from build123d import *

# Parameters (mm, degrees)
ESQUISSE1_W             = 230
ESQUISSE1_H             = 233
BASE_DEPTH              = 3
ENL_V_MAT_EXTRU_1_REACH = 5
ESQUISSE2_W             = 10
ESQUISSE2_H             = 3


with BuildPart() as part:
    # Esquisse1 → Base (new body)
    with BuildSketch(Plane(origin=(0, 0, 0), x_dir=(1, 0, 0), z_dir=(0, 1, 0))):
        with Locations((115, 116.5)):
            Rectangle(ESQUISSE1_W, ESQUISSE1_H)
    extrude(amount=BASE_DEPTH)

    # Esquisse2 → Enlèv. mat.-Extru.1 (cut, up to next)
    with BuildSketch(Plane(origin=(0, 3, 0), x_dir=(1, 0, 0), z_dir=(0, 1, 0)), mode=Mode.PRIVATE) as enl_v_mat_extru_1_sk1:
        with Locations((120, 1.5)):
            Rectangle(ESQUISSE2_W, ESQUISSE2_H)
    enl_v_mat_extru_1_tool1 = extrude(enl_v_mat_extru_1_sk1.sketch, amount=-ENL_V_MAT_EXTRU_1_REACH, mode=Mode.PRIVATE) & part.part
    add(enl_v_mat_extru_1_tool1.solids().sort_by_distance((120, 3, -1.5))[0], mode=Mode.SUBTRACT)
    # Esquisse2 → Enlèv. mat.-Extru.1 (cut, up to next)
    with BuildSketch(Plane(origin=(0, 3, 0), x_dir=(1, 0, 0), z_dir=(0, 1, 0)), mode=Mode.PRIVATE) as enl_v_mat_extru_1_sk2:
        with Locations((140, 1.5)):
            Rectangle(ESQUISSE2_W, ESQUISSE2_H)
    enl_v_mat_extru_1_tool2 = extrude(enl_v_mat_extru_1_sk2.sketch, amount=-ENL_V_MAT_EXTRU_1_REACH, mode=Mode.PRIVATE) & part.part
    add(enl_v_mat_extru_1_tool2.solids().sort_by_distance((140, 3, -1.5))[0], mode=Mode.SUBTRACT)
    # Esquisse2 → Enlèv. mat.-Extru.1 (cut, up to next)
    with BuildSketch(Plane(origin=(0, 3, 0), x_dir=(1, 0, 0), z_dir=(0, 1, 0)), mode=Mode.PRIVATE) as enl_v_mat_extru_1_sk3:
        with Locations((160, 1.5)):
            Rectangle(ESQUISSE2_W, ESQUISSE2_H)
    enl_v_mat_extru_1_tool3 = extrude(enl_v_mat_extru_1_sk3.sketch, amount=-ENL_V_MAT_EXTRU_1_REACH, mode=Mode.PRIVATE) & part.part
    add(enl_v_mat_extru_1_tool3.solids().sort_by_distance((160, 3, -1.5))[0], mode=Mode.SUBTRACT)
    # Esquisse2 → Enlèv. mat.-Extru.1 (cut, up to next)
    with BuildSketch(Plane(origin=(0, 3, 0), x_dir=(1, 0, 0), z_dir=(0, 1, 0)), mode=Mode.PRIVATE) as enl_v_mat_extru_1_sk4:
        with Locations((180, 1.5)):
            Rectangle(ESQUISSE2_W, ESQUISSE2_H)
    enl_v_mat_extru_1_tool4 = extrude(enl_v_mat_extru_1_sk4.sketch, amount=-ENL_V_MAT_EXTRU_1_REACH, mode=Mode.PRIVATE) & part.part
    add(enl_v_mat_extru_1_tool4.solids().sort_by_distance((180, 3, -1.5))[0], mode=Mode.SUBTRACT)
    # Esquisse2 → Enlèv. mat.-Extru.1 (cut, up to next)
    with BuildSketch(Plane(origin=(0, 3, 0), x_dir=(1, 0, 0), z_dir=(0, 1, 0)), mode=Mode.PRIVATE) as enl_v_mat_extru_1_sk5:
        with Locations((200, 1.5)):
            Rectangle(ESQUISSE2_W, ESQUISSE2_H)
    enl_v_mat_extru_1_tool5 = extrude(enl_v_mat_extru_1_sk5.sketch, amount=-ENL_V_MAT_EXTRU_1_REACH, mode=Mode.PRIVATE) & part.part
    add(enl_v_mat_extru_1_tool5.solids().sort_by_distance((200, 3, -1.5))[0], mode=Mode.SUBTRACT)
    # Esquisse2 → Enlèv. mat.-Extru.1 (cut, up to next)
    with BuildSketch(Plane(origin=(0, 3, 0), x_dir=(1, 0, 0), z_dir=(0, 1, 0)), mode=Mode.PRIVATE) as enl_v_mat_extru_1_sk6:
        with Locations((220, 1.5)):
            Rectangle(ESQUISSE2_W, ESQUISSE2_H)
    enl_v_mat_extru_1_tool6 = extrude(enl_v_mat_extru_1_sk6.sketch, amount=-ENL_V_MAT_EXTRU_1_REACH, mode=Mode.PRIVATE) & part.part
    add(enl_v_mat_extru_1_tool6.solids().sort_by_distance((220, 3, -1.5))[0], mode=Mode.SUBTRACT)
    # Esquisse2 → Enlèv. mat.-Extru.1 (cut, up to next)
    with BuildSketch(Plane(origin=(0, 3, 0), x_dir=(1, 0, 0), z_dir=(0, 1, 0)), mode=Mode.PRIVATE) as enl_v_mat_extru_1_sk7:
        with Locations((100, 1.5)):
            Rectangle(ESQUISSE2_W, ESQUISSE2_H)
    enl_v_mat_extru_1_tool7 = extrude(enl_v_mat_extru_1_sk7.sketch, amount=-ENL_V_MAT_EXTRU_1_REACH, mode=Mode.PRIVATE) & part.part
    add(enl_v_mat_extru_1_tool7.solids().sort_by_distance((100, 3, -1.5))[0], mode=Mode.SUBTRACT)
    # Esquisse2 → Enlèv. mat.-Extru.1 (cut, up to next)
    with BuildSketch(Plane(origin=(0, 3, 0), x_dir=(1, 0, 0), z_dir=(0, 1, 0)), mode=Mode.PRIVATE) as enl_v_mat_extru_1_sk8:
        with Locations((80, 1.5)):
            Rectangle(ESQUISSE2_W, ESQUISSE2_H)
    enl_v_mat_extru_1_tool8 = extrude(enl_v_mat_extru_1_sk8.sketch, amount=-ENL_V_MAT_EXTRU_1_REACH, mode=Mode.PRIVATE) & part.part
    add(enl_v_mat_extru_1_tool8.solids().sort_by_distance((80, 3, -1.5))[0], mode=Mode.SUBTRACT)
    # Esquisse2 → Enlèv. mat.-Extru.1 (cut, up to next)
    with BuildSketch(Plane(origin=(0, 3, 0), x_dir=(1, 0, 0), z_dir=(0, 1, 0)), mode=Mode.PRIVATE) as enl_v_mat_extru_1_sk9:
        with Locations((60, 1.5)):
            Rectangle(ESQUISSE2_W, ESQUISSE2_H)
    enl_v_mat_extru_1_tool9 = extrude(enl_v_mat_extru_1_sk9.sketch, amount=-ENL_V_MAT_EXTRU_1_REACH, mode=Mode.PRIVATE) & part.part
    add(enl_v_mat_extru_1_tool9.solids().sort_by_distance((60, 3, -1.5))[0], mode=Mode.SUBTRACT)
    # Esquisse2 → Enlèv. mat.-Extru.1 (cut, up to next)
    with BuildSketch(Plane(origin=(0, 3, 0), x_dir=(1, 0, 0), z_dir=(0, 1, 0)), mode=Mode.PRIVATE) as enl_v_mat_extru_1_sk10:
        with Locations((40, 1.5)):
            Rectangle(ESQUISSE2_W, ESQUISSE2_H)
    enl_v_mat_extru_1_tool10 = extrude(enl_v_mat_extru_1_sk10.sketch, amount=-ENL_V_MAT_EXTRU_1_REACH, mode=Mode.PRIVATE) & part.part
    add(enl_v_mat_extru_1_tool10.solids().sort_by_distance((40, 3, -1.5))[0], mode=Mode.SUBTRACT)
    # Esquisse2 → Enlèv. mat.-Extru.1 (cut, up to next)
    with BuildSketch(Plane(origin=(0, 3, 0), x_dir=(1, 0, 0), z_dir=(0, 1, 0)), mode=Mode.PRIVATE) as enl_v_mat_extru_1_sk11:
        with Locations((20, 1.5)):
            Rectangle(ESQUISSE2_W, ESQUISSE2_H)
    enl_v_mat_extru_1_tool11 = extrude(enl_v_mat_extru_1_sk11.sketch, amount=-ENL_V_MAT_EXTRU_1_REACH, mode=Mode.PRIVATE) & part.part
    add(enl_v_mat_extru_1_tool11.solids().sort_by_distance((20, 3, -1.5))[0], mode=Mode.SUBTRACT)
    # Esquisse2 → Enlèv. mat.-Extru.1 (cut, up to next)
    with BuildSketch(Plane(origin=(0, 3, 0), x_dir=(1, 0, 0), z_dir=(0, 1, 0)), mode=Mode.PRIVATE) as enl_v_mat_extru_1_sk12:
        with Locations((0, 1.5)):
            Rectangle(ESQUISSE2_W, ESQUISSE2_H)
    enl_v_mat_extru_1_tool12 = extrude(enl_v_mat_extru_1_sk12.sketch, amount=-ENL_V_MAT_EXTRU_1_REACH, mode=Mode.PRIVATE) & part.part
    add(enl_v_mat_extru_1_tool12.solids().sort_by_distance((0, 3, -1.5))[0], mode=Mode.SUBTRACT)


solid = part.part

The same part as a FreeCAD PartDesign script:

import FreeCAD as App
import Part
import Sketcher
Q = App.Units.Quantity

doc = App.newDocument("Part")
body = doc.addObject("PartDesign::Body", "Body")

sketch1 = body.newObject("Sketcher::SketchObject", "Sketch")
sketch1.AttachmentSupport = (doc.getObject("XZ_Plane"), [""])
sketch1.MapMode = "FlatFace"
sketch1.addGeometry([
    Part.LineSegment(App.Vector(0, -233, 0), App.Vector(0, 0, 0)),
    Part.LineSegment(App.Vector(0, 0, 0), App.Vector(230, 0, 0)),
    Part.LineSegment(App.Vector(230, 0, 0), App.Vector(230, -233, 0)),
    Part.LineSegment(App.Vector(230, -233, 0), App.Vector(0, -233, 0)),
], False)
sketch1.addConstraint([
    Sketcher.Constraint("Coincident", 0, 2, 1, 1),
    Sketcher.Constraint("Coincident", 1, 2, 2, 1),
    Sketcher.Constraint("Coincident", 2, 2, 3, 1),
    Sketcher.Constraint("Coincident", 3, 2, 0, 1),
    Sketcher.Constraint("Vertical", 0),
    Sketcher.Constraint("Horizontal", 1),
    Sketcher.Constraint("Vertical", 2),
    Sketcher.Constraint("Horizontal", 3),
    Sketcher.Constraint("Coincident", 0, 2, -1, 1),
    Sketcher.Constraint("DistanceX", 1, 1, 1, 2, Q("230 mm")),
    Sketcher.Constraint("DistanceY", 0, 1, 0, 2, Q("233 mm")),
])
pad1 = body.newObject("PartDesign::Pad", "Pad")
pad1.Profile = sketch1
pad1.Length = 3
pad1.Reversed = True

sketch2 = body.newObject("Sketcher::SketchObject", "Sketch001")
sketch2.AttachmentSupport = (doc.getObject("XZ_Plane"), [""])
sketch2.MapMode = "FlatFace"
sketch2.AttachmentOffset = App.Placement(App.Vector(0, 0, -3), App.Rotation())
sketch2.addGeometry([
    Part.LineSegment(App.Vector(115, -3, 0), App.Vector(115, 0, 0)),
    Part.LineSegment(App.Vector(115, 0, 0), App.Vector(125, 0, 0)),
    Part.LineSegment(App.Vector(125, 0, 0), App.Vector(125, -3, 0)),
    Part.LineSegment(App.Vector(125, -3, 0), App.Vector(115, -3, 0)),
], False)
sketch2.addConstraint([
    Sketcher.Constraint("Coincident", 0, 2, 1, 1),
    Sketcher.Constraint("Coincident", 1, 2, 2, 1),
    Sketcher.Constraint("Coincident", 2, 2, 3, 1),
    Sketcher.Constraint("Coincident", 3, 2, 0, 1),
    Sketcher.Constraint("Vertical", 0),
    Sketcher.Constraint("Horizontal", 1),
    Sketcher.Constraint("Vertical", 2),
    Sketcher.Constraint("Horizontal", 3),
    Sketcher.Constraint("PointOnObject", 0, 2, -1),
    Sketcher.Constraint("DistanceX", 1, 1, 1, 2, Q("10 mm")),
    Sketcher.Constraint("DistanceY", 0, 1, 0, 2, Q("3 mm")),
    Sketcher.Constraint("DistanceX", -1, 1, 0, 2, Q("115 mm")),
])
pocket1 = body.newObject("PartDesign::Pocket", "Pocket")
pocket1.Profile = sketch2
pocket1.Type = "UpToFirst"
pocket1.Reversed = True

sketch3 = body.newObject("Sketcher::SketchObject", "Sketch002")
sketch3.AttachmentSupport = (doc.getObject("XZ_Plane"), [""])
sketch3.MapMode = "FlatFace"
sketch3.AttachmentOffset = App.Placement(App.Vector(0, 0, -3), App.Rotation())
sketch3.addGeometry([
    Part.LineSegment(App.Vector(135, -3, 0), App.Vector(135, 0, 0)),
    Part.LineSegment(App.Vector(135, 0, 0), App.Vector(145, 0, 0)),
    Part.LineSegment(App.Vector(145, 0, 0), App.Vector(145, -3, 0)),
    Part.LineSegment(App.Vector(145, -3, 0), App.Vector(135, -3, 0)),
], False)
sketch3.addConstraint([
    Sketcher.Constraint("Coincident", 0, 2, 1, 1),
    Sketcher.Constraint("Coincident", 1, 2, 2, 1),
    Sketcher.Constraint("Coincident", 2, 2, 3, 1),
    Sketcher.Constraint("Coincident", 3, 2, 0, 1),
    Sketcher.Constraint("Vertical", 0),
    Sketcher.Constraint("Horizontal", 1),
    Sketcher.Constraint("Vertical", 2),
    Sketcher.Constraint("Horizontal", 3),
    Sketcher.Constraint("PointOnObject", 0, 2, -1),
    Sketcher.Constraint("DistanceX", 1, 1, 1, 2, Q("10 mm")),
    Sketcher.Constraint("DistanceY", 0, 1, 0, 2, Q("3 mm")),
    Sketcher.Constraint("DistanceX", -1, 1, 0, 2, Q("135 mm")),
])
pocket2 = body.newObject("PartDesign::Pocket", "Pocket001")
pocket2.Profile = sketch3
pocket2.Type = "UpToFirst"
pocket2.Reversed = True

sketch4 = body.newObject("Sketcher::SketchObject", "Sketch003")
sketch4.AttachmentSupport = (doc.getObject("XZ_Plane"), [""])
sketch4.MapMode = "FlatFace"
sketch4.AttachmentOffset = App.Placement(App.Vector(0, 0, -3), App.Rotation())
sketch4.addGeometry([
    Part.LineSegment(App.Vector(155, -3, 0), App.Vector(155, 0, 0)),
    Part.LineSegment(App.Vector(155, 0, 0), App.Vector(165, 0, 0)),
    Part.LineSegment(App.Vector(165, 0, 0), App.Vector(165, -3, 0)),
    Part.LineSegment(App.Vector(165, -3, 0), App.Vector(155, -3, 0)),
], False)
sketch4.addConstraint([
    Sketcher.Constraint("Coincident", 0, 2, 1, 1),
    Sketcher.Constraint("Coincident", 1, 2, 2, 1),
    Sketcher.Constraint("Coincident", 2, 2, 3, 1),
    Sketcher.Constraint("Coincident", 3, 2, 0, 1),
    Sketcher.Constraint("Vertical", 0),
    Sketcher.Constraint("Horizontal", 1),
    Sketcher.Constraint("Vertical", 2),
    Sketcher.Constraint("Horizontal", 3),
    Sketcher.Constraint("PointOnObject", 0, 2, -1),
    Sketcher.Constraint("DistanceX", 1, 1, 1, 2, Q("10 mm")),
    Sketcher.Constraint("DistanceY", 0, 1, 0, 2, Q("3 mm")),
    Sketcher.Constraint("DistanceX", -1, 1, 0, 2, Q("155 mm")),
])
pocket3 = body.newObject("PartDesign::Pocket", "Pocket002")
pocket3.Profile = sketch4
pocket3.Type = "UpToFirst"
pocket3.Reversed = True

sketch5 = body.newObject("Sketcher::SketchObject", "Sketch004")
sketch5.AttachmentSupport = (doc.getObject("XZ_Plane"), [""])
sketch5.MapMode = "FlatFace"
sketch5.AttachmentOffset = App.Placement(App.Vector(0, 0, -3), App.Rotation())
sketch5.addGeometry([
    Part.LineSegment(App.Vector(175, -3, 0), App.Vector(175, 0, 0)),
    Part.LineSegment(App.Vector(175, 0, 0), App.Vector(185, 0, 0)),
    Part.LineSegment(App.Vector(185, 0, 0), App.Vector(185, -3, 0)),
    Part.LineSegment(App.Vector(185, -3, 0), App.Vector(175, -3, 0)),
], False)
sketch5.addConstraint([
    Sketcher.Constraint("Coincident", 0, 2, 1, 1),
    Sketcher.Constraint("Coincident", 1, 2, 2, 1),
    Sketcher.Constraint("Coincident", 2, 2, 3, 1),
    Sketcher.Constraint("Coincident", 3, 2, 0, 1),
    Sketcher.Constraint("Vertical", 0),
    Sketcher.Constraint("Horizontal", 1),
    Sketcher.Constraint("Vertical", 2),
    Sketcher.Constraint("Horizontal", 3),
    Sketcher.Constraint("PointOnObject", 0, 2, -1),
    Sketcher.Constraint("DistanceX", 1, 1, 1, 2, Q("10 mm")),
    Sketcher.Constraint("DistanceY", 0, 1, 0, 2, Q("3 mm")),
    Sketcher.Constraint("DistanceX", -1, 1, 0, 2, Q("175 mm")),
])
pocket4 = body.newObject("PartDesign::Pocket", "Pocket003")
pocket4.Profile = sketch5
pocket4.Type = "UpToFirst"
pocket4.Reversed = True

sketch6 = body.newObject("Sketcher::SketchObject", "Sketch005")
sketch6.AttachmentSupport = (doc.getObject("XZ_Plane"), [""])
sketch6.MapMode = "FlatFace"
sketch6.AttachmentOffset = App.Placement(App.Vector(0, 0, -3), App.Rotation())
sketch6.addGeometry([
    Part.LineSegment(App.Vector(195, -3, 0), App.Vector(195, 0, 0)),
    Part.LineSegment(App.Vector(195, 0, 0), App.Vector(205, 0, 0)),
    Part.LineSegment(App.Vector(205, 0, 0), App.Vector(205, -3, 0)),
    Part.LineSegment(App.Vector(205, -3, 0), App.Vector(195, -3, 0)),
], False)
sketch6.addConstraint([
    Sketcher.Constraint("Coincident", 0, 2, 1, 1),
    Sketcher.Constraint("Coincident", 1, 2, 2, 1),
    Sketcher.Constraint("Coincident", 2, 2, 3, 1),
    Sketcher.Constraint("Coincident", 3, 2, 0, 1),
    Sketcher.Constraint("Vertical", 0),
    Sketcher.Constraint("Horizontal", 1),
    Sketcher.Constraint("Vertical", 2),
    Sketcher.Constraint("Horizontal", 3),
    Sketcher.Constraint("PointOnObject", 0, 2, -1),
    Sketcher.Constraint("DistanceX", 1, 1, 1, 2, Q("10 mm")),
    Sketcher.Constraint("DistanceY", 0, 1, 0, 2, Q("3 mm")),
    Sketcher.Constraint("DistanceX", -1, 1, 0, 2, Q("195 mm")),
])
pocket5 = body.newObject("PartDesign::Pocket", "Pocket004")
pocket5.Profile = sketch6
pocket5.Type = "UpToFirst"
pocket5.Reversed = True

sketch7 = body.newObject("Sketcher::SketchObject", "Sketch006")
sketch7.AttachmentSupport = (doc.getObject("XZ_Plane"), [""])
sketch7.MapMode = "FlatFace"
sketch7.AttachmentOffset = App.Placement(App.Vector(0, 0, -3), App.Rotation())
sketch7.addGeometry([
    Part.LineSegment(App.Vector(215, -3, 0), App.Vector(215, 0, 0)),
    Part.LineSegment(App.Vector(215, 0, 0), App.Vector(225, 0, 0)),
    Part.LineSegment(App.Vector(225, 0, 0), App.Vector(225, -3, 0)),
    Part.LineSegment(App.Vector(225, -3, 0), App.Vector(215, -3, 0)),
], False)
sketch7.addConstraint([
    Sketcher.Constraint("Coincident", 0, 2, 1, 1),
    Sketcher.Constraint("Coincident", 1, 2, 2, 1),
    Sketcher.Constraint("Coincident", 2, 2, 3, 1),
    Sketcher.Constraint("Coincident", 3, 2, 0, 1),
    Sketcher.Constraint("Vertical", 0),
    Sketcher.Constraint("Horizontal", 1),
    Sketcher.Constraint("Vertical", 2),
    Sketcher.Constraint("Horizontal", 3),
    Sketcher.Constraint("PointOnObject", 0, 2, -1),
    Sketcher.Constraint("DistanceX", 1, 1, 1, 2, Q("10 mm")),
    Sketcher.Constraint("DistanceY", 0, 1, 0, 2, Q("3 mm")),
    Sketcher.Constraint("DistanceX", -1, 1, 0, 2, Q("215 mm")),
])
pocket6 = body.newObject("PartDesign::Pocket", "Pocket005")
pocket6.Profile = sketch7
pocket6.Type = "UpToFirst"
pocket6.Reversed = True

sketch8 = body.newObject("Sketcher::SketchObject", "Sketch007")
sketch8.AttachmentSupport = (doc.getObject("XZ_Plane"), [""])
sketch8.MapMode = "FlatFace"
sketch8.AttachmentOffset = App.Placement(App.Vector(0, 0, -3), App.Rotation())
sketch8.addGeometry([
    Part.LineSegment(App.Vector(95, -3, 0), App.Vector(95, 0, 0)),
    Part.LineSegment(App.Vector(95, 0, 0), App.Vector(105, 0, 0)),
    Part.LineSegment(App.Vector(105, 0, 0), App.Vector(105, -3, 0)),
    Part.LineSegment(App.Vector(105, -3, 0), App.Vector(95, -3, 0)),
], False)
sketch8.addConstraint([
    Sketcher.Constraint("Coincident", 0, 2, 1, 1),
    Sketcher.Constraint("Coincident", 1, 2, 2, 1),
    Sketcher.Constraint("Coincident", 2, 2, 3, 1),
    Sketcher.Constraint("Coincident", 3, 2, 0, 1),
    Sketcher.Constraint("Vertical", 0),
    Sketcher.Constraint("Horizontal", 1),
    Sketcher.Constraint("Vertical", 2),
    Sketcher.Constraint("Horizontal", 3),
    Sketcher.Constraint("PointOnObject", 0, 2, -1),
    Sketcher.Constraint("DistanceX", 1, 1, 1, 2, Q("10 mm")),
    Sketcher.Constraint("DistanceY", 0, 1, 0, 2, Q("3 mm")),
    Sketcher.Constraint("DistanceX", -1, 1, 0, 2, Q("95 mm")),
])
pocket7 = body.newObject("PartDesign::Pocket", "Pocket006")
pocket7.Profile = sketch8
pocket7.Type = "UpToFirst"
pocket7.Reversed = True

sketch9 = body.newObject("Sketcher::SketchObject", "Sketch008")
sketch9.AttachmentSupport = (doc.getObject("XZ_Plane"), [""])
sketch9.MapMode = "FlatFace"
sketch9.AttachmentOffset = App.Placement(App.Vector(0, 0, -3), App.Rotation())
sketch9.addGeometry([
    Part.LineSegment(App.Vector(75, -3, 0), App.Vector(75, 0, 0)),
    Part.LineSegment(App.Vector(75, 0, 0), App.Vector(85, 0, 0)),
    Part.LineSegment(App.Vector(85, 0, 0), App.Vector(85, -3, 0)),
    Part.LineSegment(App.Vector(85, -3, 0), App.Vector(75, -3, 0)),
], False)
sketch9.addConstraint([
    Sketcher.Constraint("Coincident", 0, 2, 1, 1),
    Sketcher.Constraint("Coincident", 1, 2, 2, 1),
    Sketcher.Constraint("Coincident", 2, 2, 3, 1),
    Sketcher.Constraint("Coincident", 3, 2, 0, 1),
    Sketcher.Constraint("Vertical", 0),
    Sketcher.Constraint("Horizontal", 1),
    Sketcher.Constraint("Vertical", 2),
    Sketcher.Constraint("Horizontal", 3),
    Sketcher.Constraint("PointOnObject", 0, 2, -1),
    Sketcher.Constraint("DistanceX", 1, 1, 1, 2, Q("10 mm")),
    Sketcher.Constraint("DistanceY", 0, 1, 0, 2, Q("3 mm")),
    Sketcher.Constraint("DistanceX", -1, 1, 0, 2, Q("75 mm")),
])
pocket8 = body.newObject("PartDesign::Pocket", "Pocket007")
pocket8.Profile = sketch9
pocket8.Type = "UpToFirst"
pocket8.Reversed = True

sketch10 = body.newObject("Sketcher::SketchObject", "Sketch009")
sketch10.AttachmentSupport = (doc.getObject("XZ_Plane"), [""])
sketch10.MapMode = "FlatFace"
sketch10.AttachmentOffset = App.Placement(App.Vector(0, 0, -3), App.Rotation())
sketch10.addGeometry([
    Part.LineSegment(App.Vector(55, -3, 0), App.Vector(55, 0, 0)),
    Part.LineSegment(App.Vector(55, 0, 0), App.Vector(65, 0, 0)),
    Part.LineSegment(App.Vector(65, 0, 0), App.Vector(65, -3, 0)),
    Part.LineSegment(App.Vector(65, -3, 0), App.Vector(55, -3, 0)),
], False)
sketch10.addConstraint([
    Sketcher.Constraint("Coincident", 0, 2, 1, 1),
    Sketcher.Constraint("Coincident", 1, 2, 2, 1),
    Sketcher.Constraint("Coincident", 2, 2, 3, 1),
    Sketcher.Constraint("Coincident", 3, 2, 0, 1),
    Sketcher.Constraint("Vertical", 0),
    Sketcher.Constraint("Horizontal", 1),
    Sketcher.Constraint("Vertical", 2),
    Sketcher.Constraint("Horizontal", 3),
    Sketcher.Constraint("PointOnObject", 0, 2, -1),
    Sketcher.Constraint("DistanceX", 1, 1, 1, 2, Q("10 mm")),
    Sketcher.Constraint("DistanceY", 0, 1, 0, 2, Q("3 mm")),
    Sketcher.Constraint("DistanceX", -1, 1, 0, 2, Q("55 mm")),
])
pocket9 = body.newObject("PartDesign::Pocket", "Pocket008")
pocket9.Profile = sketch10
pocket9.Type = "UpToFirst"
pocket9.Reversed = True

sketch11 = body.newObject("Sketcher::SketchObject", "Sketch010")
sketch11.AttachmentSupport = (doc.getObject("XZ_Plane"), [""])
sketch11.MapMode = "FlatFace"
sketch11.AttachmentOffset = App.Placement(App.Vector(0, 0, -3), App.Rotation())
sketch11.addGeometry([
    Part.LineSegment(App.Vector(35, -3, 0), App.Vector(35, 0, 0)),
    Part.LineSegment(App.Vector(35, 0, 0), App.Vector(45, 0, 0)),
    Part.LineSegment(App.Vector(45, 0, 0), App.Vector(45, -3, 0)),
    Part.LineSegment(App.Vector(45, -3, 0), App.Vector(35, -3, 0)),
], False)
sketch11.addConstraint([
    Sketcher.Constraint("Coincident", 0, 2, 1, 1),
    Sketcher.Constraint("Coincident", 1, 2, 2, 1),
    Sketcher.Constraint("Coincident", 2, 2, 3, 1),
    Sketcher.Constraint("Coincident", 3, 2, 0, 1),
    Sketcher.Constraint("Vertical", 0),
    Sketcher.Constraint("Horizontal", 1),
    Sketcher.Constraint("Vertical", 2),
    Sketcher.Constraint("Horizontal", 3),
    Sketcher.Constraint("PointOnObject", 0, 2, -1),
    Sketcher.Constraint("DistanceX", 1, 1, 1, 2, Q("10 mm")),
    Sketcher.Constraint("DistanceY", 0, 1, 0, 2, Q("3 mm")),
    Sketcher.Constraint("DistanceX", -1, 1, 0, 2, Q("35 mm")),
])
pocket10 = body.newObject("PartDesign::Pocket", "Pocket009")
pocket10.Profile = sketch11
pocket10.Type = "UpToFirst"
pocket10.Reversed = True

sketch12 = body.newObject("Sketcher::SketchObject", "Sketch011")
sketch12.AttachmentSupport = (doc.getObject("XZ_Plane"), [""])
sketch12.MapMode = "FlatFace"
sketch12.AttachmentOffset = App.Placement(App.Vector(0, 0, -3), App.Rotation())
sketch12.addGeometry([
    Part.LineSegment(App.Vector(15, -3, 0), App.Vector(15, 0, 0)),
    Part.LineSegment(App.Vector(15, 0, 0), App.Vector(25, 0, 0)),
    Part.LineSegment(App.Vector(25, 0, 0), App.Vector(25, -3, 0)),
    Part.LineSegment(App.Vector(25, -3, 0), App.Vector(15, -3, 0)),
], False)
sketch12.addConstraint([
    Sketcher.Constraint("Coincident", 0, 2, 1, 1),
    Sketcher.Constraint("Coincident", 1, 2, 2, 1),
    Sketcher.Constraint("Coincident", 2, 2, 3, 1),
    Sketcher.Constraint("Coincident", 3, 2, 0, 1),
    Sketcher.Constraint("Vertical", 0),
    Sketcher.Constraint("Horizontal", 1),
    Sketcher.Constraint("Vertical", 2),
    Sketcher.Constraint("Horizontal", 3),
    Sketcher.Constraint("PointOnObject", 0, 2, -1),
    Sketcher.Constraint("DistanceX", 1, 1, 1, 2, Q("10 mm")),
    Sketcher.Constraint("DistanceY", 0, 1, 0, 2, Q("3 mm")),
    Sketcher.Constraint("DistanceX", -1, 1, 0, 2, Q("15 mm")),
])
pocket11 = body.newObject("PartDesign::Pocket", "Pocket010")
pocket11.Profile = sketch12
pocket11.Type = "UpToFirst"
pocket11.Reversed = True

sketch13 = body.newObject("Sketcher::SketchObject", "Sketch012")
sketch13.AttachmentSupport = (doc.getObject("XZ_Plane"), [""])
sketch13.MapMode = "FlatFace"
sketch13.AttachmentOffset = App.Placement(App.Vector(0, 0, -3), App.Rotation())
sketch13.addGeometry([
    Part.LineSegment(App.Vector(-5, -3, 0), App.Vector(-5, 0, 0)),
    Part.LineSegment(App.Vector(-5, 0, 0), App.Vector(5, 0, 0)),
    Part.LineSegment(App.Vector(5, 0, 0), App.Vector(5, -3, 0)),
    Part.LineSegment(App.Vector(5, -3, 0), App.Vector(-5, -3, 0)),
], False)
sketch13.addConstraint([
    Sketcher.Constraint("Coincident", 0, 2, 1, 1),
    Sketcher.Constraint("Coincident", 1, 2, 2, 1),
    Sketcher.Constraint("Coincident", 2, 2, 3, 1),
    Sketcher.Constraint("Coincident", 3, 2, 0, 1),
    Sketcher.Constraint("Vertical", 0),
    Sketcher.Constraint("Horizontal", 1),
    Sketcher.Constraint("Vertical", 2),
    Sketcher.Constraint("Horizontal", 3),
    Sketcher.Constraint("Symmetric", 0, 2, 1, 2, -1, 1),
    Sketcher.Constraint("DistanceX", 1, 1, 1, 2, Q("10 mm")),
    Sketcher.Constraint("DistanceY", 0, 1, 0, 2, Q("3 mm")),
])
pocket12 = body.newObject("PartDesign::Pocket", "Pocket011")
pocket12.Profile = sketch13
pocket12.Type = "UpToFirst"
pocket12.Reversed = True

doc.recompute()
